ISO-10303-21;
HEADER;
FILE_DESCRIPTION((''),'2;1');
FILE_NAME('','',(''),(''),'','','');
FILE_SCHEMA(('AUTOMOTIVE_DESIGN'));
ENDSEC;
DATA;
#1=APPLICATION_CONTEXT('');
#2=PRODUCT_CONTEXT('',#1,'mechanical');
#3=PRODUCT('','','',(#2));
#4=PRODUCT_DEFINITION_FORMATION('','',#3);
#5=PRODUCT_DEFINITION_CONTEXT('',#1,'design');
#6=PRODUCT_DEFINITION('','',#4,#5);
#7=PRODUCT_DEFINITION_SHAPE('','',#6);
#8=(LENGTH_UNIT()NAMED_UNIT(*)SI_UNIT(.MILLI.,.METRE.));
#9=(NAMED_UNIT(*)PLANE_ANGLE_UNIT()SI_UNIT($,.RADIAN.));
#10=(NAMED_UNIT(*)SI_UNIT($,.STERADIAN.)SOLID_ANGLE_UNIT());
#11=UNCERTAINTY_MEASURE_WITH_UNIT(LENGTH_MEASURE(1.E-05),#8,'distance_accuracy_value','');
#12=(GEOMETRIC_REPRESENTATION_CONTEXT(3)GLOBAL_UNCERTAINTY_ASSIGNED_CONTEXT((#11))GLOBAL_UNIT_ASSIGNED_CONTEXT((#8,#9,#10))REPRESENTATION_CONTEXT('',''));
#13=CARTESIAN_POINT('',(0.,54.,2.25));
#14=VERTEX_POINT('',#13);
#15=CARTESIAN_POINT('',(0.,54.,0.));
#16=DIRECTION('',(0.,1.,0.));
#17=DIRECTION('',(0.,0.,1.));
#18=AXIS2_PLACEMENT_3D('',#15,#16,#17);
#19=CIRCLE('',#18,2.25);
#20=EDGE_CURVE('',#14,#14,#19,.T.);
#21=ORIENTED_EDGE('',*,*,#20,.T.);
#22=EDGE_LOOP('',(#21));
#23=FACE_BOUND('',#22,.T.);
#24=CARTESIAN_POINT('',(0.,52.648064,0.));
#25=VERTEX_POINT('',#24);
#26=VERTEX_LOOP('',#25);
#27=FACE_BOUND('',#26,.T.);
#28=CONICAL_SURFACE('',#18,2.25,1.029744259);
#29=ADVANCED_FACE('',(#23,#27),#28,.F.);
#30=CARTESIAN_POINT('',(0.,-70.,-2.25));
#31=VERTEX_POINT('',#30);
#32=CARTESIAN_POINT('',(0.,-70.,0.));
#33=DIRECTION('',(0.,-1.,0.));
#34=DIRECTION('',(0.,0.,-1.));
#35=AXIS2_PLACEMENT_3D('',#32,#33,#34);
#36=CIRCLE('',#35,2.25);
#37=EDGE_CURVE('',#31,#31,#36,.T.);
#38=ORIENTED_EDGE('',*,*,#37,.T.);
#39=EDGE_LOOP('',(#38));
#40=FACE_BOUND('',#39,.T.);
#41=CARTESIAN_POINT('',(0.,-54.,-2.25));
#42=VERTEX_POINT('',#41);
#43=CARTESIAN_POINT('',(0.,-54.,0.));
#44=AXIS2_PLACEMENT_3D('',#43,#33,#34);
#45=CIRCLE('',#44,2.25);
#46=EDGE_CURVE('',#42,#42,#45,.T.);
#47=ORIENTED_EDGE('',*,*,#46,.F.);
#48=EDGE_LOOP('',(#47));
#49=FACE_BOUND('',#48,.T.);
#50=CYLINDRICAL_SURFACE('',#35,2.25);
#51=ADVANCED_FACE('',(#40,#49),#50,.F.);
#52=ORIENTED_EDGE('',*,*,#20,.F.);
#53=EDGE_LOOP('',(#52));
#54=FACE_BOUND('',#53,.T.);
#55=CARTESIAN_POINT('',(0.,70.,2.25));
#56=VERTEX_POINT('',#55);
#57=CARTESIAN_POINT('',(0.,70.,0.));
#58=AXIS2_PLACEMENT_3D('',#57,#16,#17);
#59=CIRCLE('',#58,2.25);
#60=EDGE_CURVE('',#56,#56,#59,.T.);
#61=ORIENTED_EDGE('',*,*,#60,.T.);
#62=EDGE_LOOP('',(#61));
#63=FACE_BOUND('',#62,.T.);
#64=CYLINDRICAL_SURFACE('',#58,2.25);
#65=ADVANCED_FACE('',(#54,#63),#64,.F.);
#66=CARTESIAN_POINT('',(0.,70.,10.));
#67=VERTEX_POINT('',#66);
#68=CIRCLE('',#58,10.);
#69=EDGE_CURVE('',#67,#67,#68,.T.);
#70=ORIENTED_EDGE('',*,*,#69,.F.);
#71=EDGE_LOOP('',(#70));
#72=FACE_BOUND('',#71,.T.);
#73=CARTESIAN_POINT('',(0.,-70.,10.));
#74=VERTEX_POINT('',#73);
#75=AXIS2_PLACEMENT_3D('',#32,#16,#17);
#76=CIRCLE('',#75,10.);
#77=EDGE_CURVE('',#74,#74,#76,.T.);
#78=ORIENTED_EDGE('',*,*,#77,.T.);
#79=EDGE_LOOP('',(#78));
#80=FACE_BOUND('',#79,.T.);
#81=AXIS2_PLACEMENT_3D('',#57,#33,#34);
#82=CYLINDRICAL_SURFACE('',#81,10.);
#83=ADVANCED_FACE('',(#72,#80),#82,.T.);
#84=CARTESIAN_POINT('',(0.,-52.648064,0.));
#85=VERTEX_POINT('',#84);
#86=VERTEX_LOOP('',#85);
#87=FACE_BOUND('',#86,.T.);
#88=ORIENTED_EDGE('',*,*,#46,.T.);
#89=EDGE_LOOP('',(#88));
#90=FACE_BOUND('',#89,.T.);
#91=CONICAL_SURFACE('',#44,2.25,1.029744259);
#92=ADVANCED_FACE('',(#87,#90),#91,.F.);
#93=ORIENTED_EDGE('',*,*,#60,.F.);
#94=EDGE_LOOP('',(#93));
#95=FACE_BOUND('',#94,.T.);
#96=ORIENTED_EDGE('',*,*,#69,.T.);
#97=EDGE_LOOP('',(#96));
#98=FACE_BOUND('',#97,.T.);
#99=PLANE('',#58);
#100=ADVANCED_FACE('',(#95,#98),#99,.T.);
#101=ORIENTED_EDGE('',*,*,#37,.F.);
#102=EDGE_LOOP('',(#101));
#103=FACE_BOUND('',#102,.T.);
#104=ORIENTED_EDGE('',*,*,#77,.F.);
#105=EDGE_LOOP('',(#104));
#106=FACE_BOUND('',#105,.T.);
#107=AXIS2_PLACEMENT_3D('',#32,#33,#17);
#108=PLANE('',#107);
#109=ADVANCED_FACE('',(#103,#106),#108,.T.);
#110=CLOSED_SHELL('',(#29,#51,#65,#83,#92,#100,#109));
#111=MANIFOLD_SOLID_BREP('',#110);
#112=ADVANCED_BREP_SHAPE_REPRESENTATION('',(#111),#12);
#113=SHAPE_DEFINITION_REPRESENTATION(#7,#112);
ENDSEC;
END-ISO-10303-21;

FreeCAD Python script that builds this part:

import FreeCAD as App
import Part
import Sketcher
from FreeCAD import Vector
Q = App.Units.Quantity


def add_polygon(sketch, points):
    """Adds a closed chain of lines whose ends are joined by coincident constraints."""
    first, n = sketch.GeometryCount, len(points)
    for a, b in zip(points, points[1:] + points[:1]):
        sketch.addGeometry(Part.LineSegment(App.Vector(*a, 0), App.Vector(*b, 0)), False)
    for i in range(n):
        sketch.addConstraint(Sketcher.Constraint("Coincident", first + i, 2, first + (i + 1) % n, 1))

doc = App.newDocument("Part")
body = doc.addObject("PartDesign::Body", "Body")

# Sketch on XZ plane
sketch1 = body.newObject("Sketcher::SketchObject", "Sketch")
sketch1.AttachmentSupport = (doc.getObject("XZ_Plane"), [""])
sketch1.MapMode = "FlatFace"
sketch1.addGeometry(Part.Circle(Vector(0, 0, 0), Vector(0, 0, 1), 10), False)
sketch1.addConstraint([
    Sketcher.Constraint("Coincident", 0, 3, -1, 1),
    Sketcher.Constraint("Diameter", 0, Q("20 mm")),
])
pad1 = body.newObject("PartDesign::Pad", "Pad")
pad1.Profile = sketch1
pad1.Length = 70
pad1.Reversed = True

# Sketch on YZ plane
sketch2 = body.newObject("Sketcher::SketchObject", "Sketch001")
sketch2.AttachmentSupport = (doc.getObject("YZ_Plane"), [""])
sketch2.MapMode = "FlatFace"
add_polygon(sketch2, [(52.648064, 0), (70, 0), (70, 2.25), (54, 2.25)])  # lines 0-3
sketch2.addConstraint([
    Sketcher.Constraint("Horizontal", 0),
    Sketcher.Constraint("Vertical", 1),
    Sketcher.Constraint("Horizontal", 2),
    Sketcher.Constraint("PointOnObject", 0, 2, -1),
    Sketcher.Constraint("DistanceX", 2, 2, 2, 1, Q("16 mm")),
    Sketcher.Constraint("Angle", 3, Q("-121 deg")),
    Sketcher.Constraint("DistanceX", -1, 1, 0, 2, Q("70 mm")),
    Sketcher.Constraint("DistanceY", 1, 1, 1, 2, Q("2.25 mm")),
])
groove = body.newObject("PartDesign::Groove", "Groove")
groove.Profile = sketch2
groove.ReferenceAxis = (sketch2, ["H_Axis"])
groove.Angle = 360
doc.recompute()

mirrored = body.newObject("PartDesign::Mirrored", "Mirrored")
mirrored.Originals = [pad1, groove]
mirrored.MirrorPlane = (doc.getObject("XZ_Plane"), [""])
body.Tip = mirrored

doc.recompute()
